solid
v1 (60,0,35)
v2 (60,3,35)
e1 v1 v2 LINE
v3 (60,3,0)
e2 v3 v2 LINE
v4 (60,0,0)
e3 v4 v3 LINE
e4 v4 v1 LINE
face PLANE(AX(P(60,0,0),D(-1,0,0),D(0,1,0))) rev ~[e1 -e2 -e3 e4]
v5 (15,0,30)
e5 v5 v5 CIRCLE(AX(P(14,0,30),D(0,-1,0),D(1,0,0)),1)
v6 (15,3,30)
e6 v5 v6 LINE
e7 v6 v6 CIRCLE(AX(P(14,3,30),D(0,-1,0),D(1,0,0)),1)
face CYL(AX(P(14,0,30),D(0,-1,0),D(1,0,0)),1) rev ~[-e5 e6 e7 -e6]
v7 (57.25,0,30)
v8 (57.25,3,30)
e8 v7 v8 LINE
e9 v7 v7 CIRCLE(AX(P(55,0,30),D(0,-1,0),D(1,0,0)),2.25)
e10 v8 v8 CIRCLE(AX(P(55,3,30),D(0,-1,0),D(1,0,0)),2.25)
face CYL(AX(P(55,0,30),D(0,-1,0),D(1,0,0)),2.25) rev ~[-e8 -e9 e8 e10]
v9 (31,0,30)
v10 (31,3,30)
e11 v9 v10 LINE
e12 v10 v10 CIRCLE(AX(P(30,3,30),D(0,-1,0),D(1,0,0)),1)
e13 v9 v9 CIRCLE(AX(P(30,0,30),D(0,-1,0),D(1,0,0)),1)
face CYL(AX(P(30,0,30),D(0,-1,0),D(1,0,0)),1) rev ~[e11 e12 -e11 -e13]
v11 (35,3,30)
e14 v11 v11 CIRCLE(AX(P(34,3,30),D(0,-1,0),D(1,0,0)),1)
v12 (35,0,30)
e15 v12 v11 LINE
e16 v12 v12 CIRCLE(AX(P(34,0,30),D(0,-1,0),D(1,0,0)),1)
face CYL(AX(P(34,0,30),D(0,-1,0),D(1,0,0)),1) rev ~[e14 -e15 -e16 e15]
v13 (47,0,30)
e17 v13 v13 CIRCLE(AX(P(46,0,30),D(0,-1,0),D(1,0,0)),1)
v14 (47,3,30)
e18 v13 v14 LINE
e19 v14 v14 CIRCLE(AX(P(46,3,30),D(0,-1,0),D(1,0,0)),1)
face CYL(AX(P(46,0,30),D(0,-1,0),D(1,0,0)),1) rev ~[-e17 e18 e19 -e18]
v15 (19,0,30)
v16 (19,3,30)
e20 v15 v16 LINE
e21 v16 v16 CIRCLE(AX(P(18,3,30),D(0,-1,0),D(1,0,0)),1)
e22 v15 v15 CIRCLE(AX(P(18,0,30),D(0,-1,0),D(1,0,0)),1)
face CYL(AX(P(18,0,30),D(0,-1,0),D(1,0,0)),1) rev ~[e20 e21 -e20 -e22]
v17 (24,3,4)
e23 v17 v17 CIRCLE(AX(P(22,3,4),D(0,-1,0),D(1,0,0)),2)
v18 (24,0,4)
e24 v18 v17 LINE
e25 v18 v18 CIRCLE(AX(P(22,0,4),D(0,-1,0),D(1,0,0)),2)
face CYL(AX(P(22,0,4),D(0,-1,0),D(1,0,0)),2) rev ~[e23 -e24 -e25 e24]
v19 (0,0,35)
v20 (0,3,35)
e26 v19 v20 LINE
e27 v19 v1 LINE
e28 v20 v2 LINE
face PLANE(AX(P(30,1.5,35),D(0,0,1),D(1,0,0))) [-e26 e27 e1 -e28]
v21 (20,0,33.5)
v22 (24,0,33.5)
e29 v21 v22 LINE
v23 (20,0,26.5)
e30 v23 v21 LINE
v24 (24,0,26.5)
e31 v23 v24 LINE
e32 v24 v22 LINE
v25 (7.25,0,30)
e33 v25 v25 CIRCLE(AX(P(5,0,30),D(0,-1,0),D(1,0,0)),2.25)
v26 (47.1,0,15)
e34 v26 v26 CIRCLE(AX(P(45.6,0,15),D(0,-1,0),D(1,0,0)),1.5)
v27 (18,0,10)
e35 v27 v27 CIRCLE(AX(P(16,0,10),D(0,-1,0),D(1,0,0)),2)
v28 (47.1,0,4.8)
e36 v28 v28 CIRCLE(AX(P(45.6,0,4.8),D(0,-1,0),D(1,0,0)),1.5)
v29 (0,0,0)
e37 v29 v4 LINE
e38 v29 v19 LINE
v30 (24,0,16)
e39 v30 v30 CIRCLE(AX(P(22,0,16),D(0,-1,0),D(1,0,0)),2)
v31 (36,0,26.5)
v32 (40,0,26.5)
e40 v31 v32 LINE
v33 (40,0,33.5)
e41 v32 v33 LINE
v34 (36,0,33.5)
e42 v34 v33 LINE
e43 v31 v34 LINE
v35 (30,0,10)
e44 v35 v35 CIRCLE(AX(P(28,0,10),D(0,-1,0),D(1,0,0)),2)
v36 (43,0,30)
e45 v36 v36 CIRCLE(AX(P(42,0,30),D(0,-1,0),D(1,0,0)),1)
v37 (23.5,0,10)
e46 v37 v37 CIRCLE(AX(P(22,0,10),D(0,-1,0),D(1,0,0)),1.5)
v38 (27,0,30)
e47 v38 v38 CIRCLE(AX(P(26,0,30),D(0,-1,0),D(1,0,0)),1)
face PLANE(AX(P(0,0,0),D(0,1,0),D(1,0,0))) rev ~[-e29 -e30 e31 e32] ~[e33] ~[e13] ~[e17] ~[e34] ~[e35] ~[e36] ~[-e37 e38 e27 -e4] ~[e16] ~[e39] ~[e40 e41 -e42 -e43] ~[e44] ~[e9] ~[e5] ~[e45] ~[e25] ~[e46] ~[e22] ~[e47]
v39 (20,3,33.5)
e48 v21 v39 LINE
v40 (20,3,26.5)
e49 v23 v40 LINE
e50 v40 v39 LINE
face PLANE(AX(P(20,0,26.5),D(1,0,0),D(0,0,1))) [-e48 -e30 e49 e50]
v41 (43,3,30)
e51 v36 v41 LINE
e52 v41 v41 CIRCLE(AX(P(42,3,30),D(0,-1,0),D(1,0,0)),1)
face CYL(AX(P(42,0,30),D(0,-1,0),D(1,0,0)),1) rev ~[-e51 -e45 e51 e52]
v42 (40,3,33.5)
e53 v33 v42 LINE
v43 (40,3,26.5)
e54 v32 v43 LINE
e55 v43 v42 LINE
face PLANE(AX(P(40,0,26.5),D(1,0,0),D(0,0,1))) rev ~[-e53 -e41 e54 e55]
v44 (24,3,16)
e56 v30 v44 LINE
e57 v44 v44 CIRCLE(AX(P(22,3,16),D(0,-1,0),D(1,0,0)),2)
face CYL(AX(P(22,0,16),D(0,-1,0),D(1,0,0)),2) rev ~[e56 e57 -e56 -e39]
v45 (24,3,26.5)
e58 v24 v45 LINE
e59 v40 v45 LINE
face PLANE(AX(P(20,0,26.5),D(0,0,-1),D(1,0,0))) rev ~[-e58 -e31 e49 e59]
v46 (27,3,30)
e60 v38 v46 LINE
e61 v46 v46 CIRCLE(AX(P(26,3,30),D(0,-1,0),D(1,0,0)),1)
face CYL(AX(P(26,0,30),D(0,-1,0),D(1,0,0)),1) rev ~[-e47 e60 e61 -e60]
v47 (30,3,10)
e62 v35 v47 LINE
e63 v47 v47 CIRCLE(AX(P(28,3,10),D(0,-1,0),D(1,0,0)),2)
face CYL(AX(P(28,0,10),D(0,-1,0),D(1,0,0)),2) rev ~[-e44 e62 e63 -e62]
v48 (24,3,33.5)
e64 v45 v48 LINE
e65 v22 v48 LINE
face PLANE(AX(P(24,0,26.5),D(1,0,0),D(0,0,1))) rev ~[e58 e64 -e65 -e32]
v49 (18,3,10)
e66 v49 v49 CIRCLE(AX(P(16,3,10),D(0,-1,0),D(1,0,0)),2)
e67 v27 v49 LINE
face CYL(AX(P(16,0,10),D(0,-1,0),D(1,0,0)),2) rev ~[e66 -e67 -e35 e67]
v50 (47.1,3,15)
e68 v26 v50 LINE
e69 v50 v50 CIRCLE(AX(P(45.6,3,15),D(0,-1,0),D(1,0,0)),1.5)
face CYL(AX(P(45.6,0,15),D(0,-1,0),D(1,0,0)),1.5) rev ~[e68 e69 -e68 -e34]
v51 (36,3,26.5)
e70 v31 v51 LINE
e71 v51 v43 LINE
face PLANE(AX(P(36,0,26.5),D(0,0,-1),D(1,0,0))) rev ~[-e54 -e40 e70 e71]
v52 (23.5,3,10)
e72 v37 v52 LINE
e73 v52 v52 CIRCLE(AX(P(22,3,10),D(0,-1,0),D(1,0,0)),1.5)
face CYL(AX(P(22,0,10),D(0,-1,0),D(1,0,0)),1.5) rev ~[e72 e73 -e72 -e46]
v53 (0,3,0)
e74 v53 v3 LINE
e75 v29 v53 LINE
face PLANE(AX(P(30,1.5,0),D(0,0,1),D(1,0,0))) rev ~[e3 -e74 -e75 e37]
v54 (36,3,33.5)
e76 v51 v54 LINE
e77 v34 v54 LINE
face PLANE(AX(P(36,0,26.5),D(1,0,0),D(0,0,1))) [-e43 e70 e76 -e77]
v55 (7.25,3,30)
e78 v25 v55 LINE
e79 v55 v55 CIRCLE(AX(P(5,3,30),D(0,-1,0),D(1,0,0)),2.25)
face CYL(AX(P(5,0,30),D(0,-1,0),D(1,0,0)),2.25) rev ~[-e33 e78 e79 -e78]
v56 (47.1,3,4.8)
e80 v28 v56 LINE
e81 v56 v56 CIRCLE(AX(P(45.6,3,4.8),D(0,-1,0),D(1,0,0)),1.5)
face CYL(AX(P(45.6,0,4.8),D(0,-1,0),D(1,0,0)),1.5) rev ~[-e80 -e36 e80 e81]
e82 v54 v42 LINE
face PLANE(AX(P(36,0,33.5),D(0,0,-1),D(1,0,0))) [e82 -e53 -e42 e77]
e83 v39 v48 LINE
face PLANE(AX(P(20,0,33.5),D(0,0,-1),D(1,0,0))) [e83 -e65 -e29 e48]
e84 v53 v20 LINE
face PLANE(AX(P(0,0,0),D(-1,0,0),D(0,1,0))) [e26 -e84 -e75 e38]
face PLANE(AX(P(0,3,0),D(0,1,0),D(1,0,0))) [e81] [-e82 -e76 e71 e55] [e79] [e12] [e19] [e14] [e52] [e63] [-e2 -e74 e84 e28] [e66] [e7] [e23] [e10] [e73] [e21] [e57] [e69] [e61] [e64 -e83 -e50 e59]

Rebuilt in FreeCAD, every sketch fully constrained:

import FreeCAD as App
import Part
import Sketcher

V = App.Vector

doc = App.newDocument("Part")
params = doc.addObject("Spreadsheet::Sheet", "Params")
for row, (alias, value) in enumerate([
    ("sketch1_width", "60 mm"),
    ("sketch1_height", "3 mm"),
    ("pad1_length", "35 mm"),
    ("sketch2_diameter", "3 mm"),
    ("sketch2_diameter2", "4 mm"),
    ("sketch2_diameter3", "2 mm"),
    ("sketch2_diameter4", "4.5 mm"),
    ("sketch2_width", "4 mm"),
    ("pocket1_length", "3 mm"),
], start=1):
    params.set(f"A{row}", alias)
    params.set(f"B{row}", "=" + value)
    params.setAlias(f"B{row}", alias)

body = doc.addObject("PartDesign::Body", "Body")

# Sketch on XY plane
sketch1 = body.newObject("Sketcher::SketchObject", "Sketch")
sketch1.AttachmentSupport = (doc.getObject("XY_Plane"), [""])
sketch1.MapMode = "FlatFace"
sketch1.addGeometry([
    Part.LineSegment(V(0, 3, 0), V(0, 0, 0)),
    Part.LineSegment(V(0, 0, 0), V(60, 0, 0)),
    Part.LineSegment(V(60, 0, 0), V(60, 3, 0)),
    Part.LineSegment(V(60, 3, 0), V(0, 3, 0)),
], False)
sketch1.addConstraint([
    Sketcher.Constraint("Coincident", 0, 2, 1, 1),
    Sketcher.Constraint("Coincident", 1, 2, 2, 1),
    Sketcher.Constraint("Coincident", 2, 2, 3, 1),
    Sketcher.Constraint("Coincident", 3, 2, 0, 1),
    Sketcher.Constraint("Vertical", 0),
    Sketcher.Constraint("Horizontal", 1),
    Sketcher.Constraint("Vertical", 2),
    Sketcher.Constraint("Horizontal", 3),
    Sketcher.Constraint("Coincident", 0, 2, -1, 1),
    Sketcher.Constraint("DistanceX", 1, 1, 1, 2, 60.0),
    Sketcher.Constraint("DistanceY", 0, 2, 0, 1, 3.0),
])
sketch1.setExpression("Constraints[9]", "Params.sketch1_width")
sketch1.setExpression("Constraints[10]", "Params.sketch1_height")
pad1 = body.newObject("PartDesign::Pad", "Pad")
pad1.Profile = sketch1
pad1.setExpression("Length", "Params.pad1_length")

# Sketch on XZ plane
sketch2 = body.newObject("Sketcher::SketchObject", "Sketch001")
sketch2.AttachmentSupport = (doc.getObject("XZ_Plane"), [""])
sketch2.MapMode = "FlatFace"
sketch2.addGeometry([
    Part.Circle(V(22, 10, 0), V(0, 0, 1), 1.5),  # 0
    Part.Circle(V(28, 10, 0), V(0, 0, 1), 2),  # 1
    Part.Circle(V(22, 16, 0), V(0, 0, 1), 2),  # 2
    Part.Circle(V(16, 10, 0), V(0, 0, 1), 2),  # 3
    Part.Circle(V(22, 4, 0), V(0, 0, 1), 2),  # 4
    Part.Circle(V(5, 30, 0), V(0, 0, 1), 2.25),  # 5
    Part.Circle(V(55, 30, 0), V(0, 0, 1), 2.25),  # 6
    Part.Circle(V(14, 30, 0), V(0, 0, 1), 1),  # 7
    Part.Circle(V(18, 30, 0), V(0, 0, 1), 1),  # 8
    Part.Circle(V(26, 30, 0), V(0, 0, 1), 1),  # 9
    Part.Circle(V(30, 30, 0), V(0, 0, 1), 1),  # 10
    Part.Circle(V(34, 30, 0), V(0, 0, 1), 1),  # 11
    Part.Circle(V(42, 30, 0), V(0, 0, 1), 1),  # 12
    Part.Circle(V(46, 30, 0), V(0, 0, 1), 1),  # 13
    Part.Circle(V(45.6, 15, 0), V(0, 0, 1), 1.5),  # 14
    Part.Circle(V(45.6, 4.8, 0), V(0, 0, 1), 1.5),  # 15
    Part.LineSegment(V(20, 33.5, 0), V(20, 26.5, 0)),  # 16
    Part.LineSegment(V(20, 26.5, 0), V(24, 26.5, 0)),  # 17
    Part.LineSegment(V(24, 26.5, 0), V(24, 33.5, 0)),  # 18
    Part.LineSegment(V(24, 33.5, 0), V(20, 33.5, 0)),  # 19
    Part.LineSegment(V(36, 33.5, 0), V(36, 26.5, 0)),  # 20
    Part.LineSegment(V(36, 26.5, 0), V(40, 26.5, 0)),  # 21
    Part.LineSegment(V(40, 26.5, 0), V(40, 33.5, 0)),  # 22
    Part.LineSegment(V(40, 33.5, 0), V(36, 33.5, 0)),  # 23
], False)
sketch2.addConstraint([
    Sketcher.Constraint("Coincident", 16, 2, 17, 1),
    Sketcher.Constraint("Coincident", 17, 2, 18, 1),
    Sketcher.Constraint("Coincident", 18, 2, 19, 1),
    Sketcher.Constraint("Coincident", 19, 2, 16, 1),
    Sketcher.Constraint("Coincident", 20, 2, 21, 1),
    Sketcher.Constraint("Coincident", 21, 2, 22, 1),
    Sketcher.Constraint("Coincident", 22, 2, 23, 1),
    Sketcher.Constraint("Coincident", 23, 2, 20, 1),
    Sketcher.Constraint("Vertical", 16),
    Sketcher.Constraint("Horizontal", 17),
    Sketcher.Constraint("Vertical", 18),
    Sketcher.Constraint("Horizontal", 19),
    Sketcher.Constraint("Vertical", 20),
    Sketcher.Constraint("Horizontal", 21),
    Sketcher.Constraint("Vertical", 22),
    Sketcher.Constraint("Horizontal", 23),
    Sketcher.Constraint("Equal", 1, 2),
    Sketcher.Constraint("Equal", 2, 3),
    Sketcher.Constraint("Equal", 3, 4),
    Sketcher.Constraint("Equal", 5, 6),
    Sketcher.Constraint("Equal", 7, 8),
    Sketcher.Constraint("Equal", 8, 9),
    Sketcher.Constraint("Equal", 9, 10),
    Sketcher.Constraint("Equal", 10, 11),
    Sketcher.Constraint("Equal", 11, 12),
    Sketcher.Constraint("Equal", 12, 13),
    Sketcher.Constraint("Equal", 0, 14),
    Sketcher.Constraint("Equal", 14, 15),
    Sketcher.Constraint("Horizontal", 0, 3, 1, 3),
    Sketcher.Constraint("Horizontal", 1, 3, 3, 3),
    Sketcher.Constraint("Horizontal", 5, 3, 6, 3),
    Sketcher.Constraint("Horizontal", 6, 3, 7, 3),
    Sketcher.Constraint("Horizontal", 7, 3, 8, 3),
    Sketcher.Constraint("Horizontal", 8, 3, 9, 3),
    Sketcher.Constraint("Horizontal", 9, 3, 10, 3),
    Sketcher.Constraint("Horizontal", 10, 3, 11, 3),
    Sketcher.Constraint("Horizontal", 11, 3, 12, 3),
    Sketcher.Constraint("Horizontal", 12, 3, 13, 3),
    Sketcher.Constraint("Horizontal", 17, 2, 20, 2),
    Sketcher.Constraint("Horizontal", 19, 2, 22, 2),
    Sketcher.Constraint("Vertical", 0, 3, 2, 3),
    Sketcher.Constraint("Vertical", 2, 3, 4, 3),
    Sketcher.Constraint("Vertical", 14, 3, 15, 3),
    Sketcher.Constraint("Equal", 19, 21),
    Sketcher.Constraint("Diameter", 0, 3.0),
    Sketcher.Constraint("Diameter", 1, 4.0),
    Sketcher.Constraint("Diameter", 7, 2.0),
    Sketcher.Constraint("Diameter", 5, 4.5),
    Sketcher.Constraint("DistanceX", 17, 1, 17, 2, 4.0),
    Sketcher.Constraint("DistanceY", 16, 2, 16, 1, 7.0),
    Sketcher.Constraint("DistanceX", -1, 1, 0, 3, 22.0),
    Sketcher.Constraint("DistanceY", -1, 1, 0, 3, 10.0),
    Sketcher.Constraint("DistanceX", -1, 1, 1, 3, 28.0),
    Sketcher.Constraint("DistanceY", -1, 1, 2, 3, 16.0),
    Sketcher.Constraint("DistanceX", -1, 1, 3, 3, 16.0),
    Sketcher.Constraint("DistanceY", -1, 1, 4, 3, 4.0),
    Sketcher.Constraint("DistanceX", -1, 1, 5, 3, 5.0),
    Sketcher.Constraint("DistanceY", -1, 1, 5, 3, 30.0),
    Sketcher.Constraint("DistanceX", -1, 1, 6, 3, 55.0),
    Sketcher.Constraint("DistanceX", -1, 1, 7, 3, 14.0),
    Sketcher.Constraint("DistanceX", -1, 1, 8, 3, 18.0),
    Sketcher.Constraint("DistanceX", -1, 1, 9, 3, 26.0),
    Sketcher.Constraint("DistanceX", -1, 1, 10, 3, 30.0),
    Sketcher.Constraint("DistanceX", -1, 1, 11, 3, 34.0),
    Sketcher.Constraint("DistanceX", -1, 1, 12, 3, 42.0),
    Sketcher.Constraint("DistanceX", -1, 1, 13, 3, 46.0),
    Sketcher.Constraint("DistanceY", -1, 1, 14, 3, 15.0),
    Sketcher.Constraint("DistanceX", -1, 1, 16, 2, 20.0),
    Sketcher.Constraint("DistanceX", -1, 1, 20, 2, 36.0),
    Sketcher.Constraint("DistanceX", -1, 1, 14, 3, 45.6),
    Sketcher.Constraint("DistanceY", -1, 1, 15, 3, 4.8),
    Sketcher.Constraint("DistanceY", -1, 1, 16, 2, 26.5),
])
sketch2.setExpression("Constraints[44]", "Params.sketch2_diameter")
sketch2.setExpression("Constraints[45]", "Params.sketch2_diameter2")
sketch2.setExpression("Constraints[46]", "Params.sketch2_diameter3")
sketch2.setExpression("Constraints[47]", "Params.sketch2_diameter4")
sketch2.setExpression("Constraints[48]", "Params.sketch2_width")
pocket1 = body.newObject("PartDesign::Pocket", "Pocket")
pocket1.Profile = sketch2
pocket1.setExpression("Length", "Params.pocket1_length")

doc.recompute()
